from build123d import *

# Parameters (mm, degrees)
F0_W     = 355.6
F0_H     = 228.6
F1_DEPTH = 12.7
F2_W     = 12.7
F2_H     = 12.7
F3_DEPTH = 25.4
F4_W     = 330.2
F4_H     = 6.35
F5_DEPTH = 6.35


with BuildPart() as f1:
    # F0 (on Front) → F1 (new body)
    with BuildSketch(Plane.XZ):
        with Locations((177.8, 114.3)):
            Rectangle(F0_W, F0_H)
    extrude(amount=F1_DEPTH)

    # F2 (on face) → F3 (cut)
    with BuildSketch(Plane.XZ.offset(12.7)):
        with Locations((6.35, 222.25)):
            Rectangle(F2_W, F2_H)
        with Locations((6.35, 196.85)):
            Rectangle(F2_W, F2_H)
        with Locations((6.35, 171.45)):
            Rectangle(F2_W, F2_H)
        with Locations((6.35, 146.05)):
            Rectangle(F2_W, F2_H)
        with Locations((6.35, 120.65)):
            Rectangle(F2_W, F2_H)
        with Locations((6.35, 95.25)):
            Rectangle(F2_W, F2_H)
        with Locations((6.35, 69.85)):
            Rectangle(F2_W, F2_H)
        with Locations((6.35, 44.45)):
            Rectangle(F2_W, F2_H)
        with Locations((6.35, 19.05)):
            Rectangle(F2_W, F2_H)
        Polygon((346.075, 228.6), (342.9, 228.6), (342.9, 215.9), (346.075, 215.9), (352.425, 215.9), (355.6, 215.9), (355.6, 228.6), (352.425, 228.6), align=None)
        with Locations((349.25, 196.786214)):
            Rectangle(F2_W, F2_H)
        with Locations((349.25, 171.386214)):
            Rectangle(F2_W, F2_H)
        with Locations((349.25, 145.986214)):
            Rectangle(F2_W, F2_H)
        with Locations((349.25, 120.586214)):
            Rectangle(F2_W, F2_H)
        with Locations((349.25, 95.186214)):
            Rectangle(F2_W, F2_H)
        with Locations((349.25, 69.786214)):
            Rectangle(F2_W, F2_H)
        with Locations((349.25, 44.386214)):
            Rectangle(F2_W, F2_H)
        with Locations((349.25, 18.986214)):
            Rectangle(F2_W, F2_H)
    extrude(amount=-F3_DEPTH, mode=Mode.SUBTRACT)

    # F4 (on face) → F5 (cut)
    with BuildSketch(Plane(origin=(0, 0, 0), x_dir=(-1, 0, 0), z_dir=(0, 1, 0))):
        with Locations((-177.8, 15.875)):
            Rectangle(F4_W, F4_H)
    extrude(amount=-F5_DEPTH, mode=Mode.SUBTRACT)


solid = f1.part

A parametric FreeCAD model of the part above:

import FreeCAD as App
import Part
import Sketcher
from FreeCAD import Vector
Q = App.Units.Quantity


def add_polygon(sketch, points):
    """Adds a closed chain of lines whose ends are joined by coincident constraints."""
    first, n = sketch.GeometryCount, len(points)
    for a, b in zip(points, points[1:] + points[:1]):
        sketch.addGeometry(Part.LineSegment(App.Vector(*a, 0), App.Vector(*b, 0)), False)
    for i in range(n):
        sketch.addConstraint(Sketcher.Constraint("Coincident", first + i, 2, first + (i + 1) % n, 1))

doc = App.newDocument("Part")
body = doc.addObject("PartDesign::Body", "Body")

# Sketch on XZ plane
sketch1 = doc.addObject("Sketcher::SketchObject", "Sketch")
body.addObject(sketch1)
sketch1.AttachmentSupport = (doc.XZ_Plane, [""])
sketch1.MapMode = "FlatFace"
add_polygon(sketch1, [(0, 229), (0, 0), (356, 0), (356, 229)])  # lines 0-3
sketch1.addConstraint([
    Sketcher.Constraint("Vertical", 0),
    Sketcher.Constraint("Horizontal", 1),
    Sketcher.Constraint("Vertical", 2),
    Sketcher.Constraint("Horizontal", 3),
    Sketcher.Constraint("Coincident", 0, 2, -1, 1),
    Sketcher.Constraint("DistanceX", 1, 1, 1, 2, Q("14 in")),
    Sketcher.Constraint("DistanceY", 0, 2, 0, 1, Q("9 in")),
])
pad1 = doc.addObject("PartDesign::Pad", "Pad")
body.addObject(pad1)
pad1.Profile = sketch1
pad1.Length = Q("0.5 in")

# Sketch on XZ plane
sketch2 = doc.addObject("Sketcher::SketchObject", "Sketch001")
body.addObject(sketch2)
sketch2.AttachmentSupport = (doc.XZ_Plane, [""])
sketch2.MapMode = "FlatFace"
sketch2.AttachmentOffset = App.Placement(Vector(0, 0, 0.5 * 25.4), App.Rotation())
add_polygon(sketch2, [(0, 229), (0, 216), (13, 216), (13, 229)])  # lines 0-3
add_polygon(sketch2, [(0, 203), (0, 190), (13, 190), (13, 203)])  # lines 4-7
add_polygon(sketch2, [(0, 178), (0, 165), (13, 165), (13, 178)])  # lines 8-11
add_polygon(sketch2, [(0, 152), (0, 140), (13, 140), (13, 152)])  # lines 12-15
add_polygon(sketch2, [(0, 127), (0, 114), (13, 114), (13, 127)])  # lines 16-19
add_polygon(sketch2, [(0, 102), (0, 89), (13, 89), (13, 102)])  # lines 20-23
add_polygon(sketch2, [(0, 76), (0, 64), (13, 64), (13, 76)])  # lines 24-27
add_polygon(sketch2, [(0, 51), (0, 38), (13, 38), (13, 51)])  # lines 28-31
add_polygon(sketch2, [(0, 25), (0, 13), (13, 13), (13, 25)])  # lines 32-35
add_polygon(sketch2, [(343, 229), (343, 216), (356, 216), (356, 229)])  # lines 36-39
add_polygon(sketch2, [(343, 203), (343, 190), (356, 190), (356, 203)])  # lines 40-43
add_polygon(sketch2, [(343, 178), (343, 165), (356, 165), (356, 178)])  # lines 44-47
add_polygon(sketch2, [(343, 152), (343, 140), (356, 140), (356, 152)])  # lines 48-51
add_polygon(sketch2, [(343, 127), (343, 114), (356, 114), (356, 127)])  # lines 52-55
add_polygon(sketch2, [(343, 102), (343, 89), (356, 89), (356, 102)])  # lines 56-59
add_polygon(sketch2, [(343, 76), (343, 63), (356, 63), (356, 76)])  # lines 60-63
add_polygon(sketch2, [(343, 51), (343, 38), (356, 38), (356, 51)])  # lines 64-67
add_polygon(sketch2, [(343, 25), (343, 13), (356, 13), (356, 25)])  # lines 68-71
sketch2.addConstraint([
    Sketcher.Constraint("Vertical", 0),
    Sketcher.Constraint("Horizontal", 1),
    Sketcher.Constraint("Vertical", 2),
    Sketcher.Constraint("Horizontal", 3),
    Sketcher.Constraint("Vertical", 4),
    Sketcher.Constraint("Horizontal", 5),
    Sketcher.Constraint("Vertical", 6),
    Sketcher.Constraint("Horizontal", 7),
    Sketcher.Constraint("Vertical", 8),
    Sketcher.Constraint("Horizontal", 9),
    Sketcher.Constraint("Vertical", 10),
    Sketcher.Constraint("Horizontal", 11),
    Sketcher.Constraint("Vertical", 12),
    Sketcher.Constraint("Horizontal", 13),
    Sketcher.Constraint("Vertical", 14),
    Sketcher.Constraint("Horizontal", 15),
    Sketcher.Constraint("Vertical", 16),
    Sketcher.Constraint("Horizontal", 17),
    Sketcher.Constraint("Vertical", 18),
    Sketcher.Constraint("Horizontal", 19),
    Sketcher.Constraint("Vertical", 20),
    Sketcher.Constraint("Horizontal", 21),
    Sketcher.Constraint("Vertical", 22),
    Sketcher.Constraint("Horizontal", 23),
    Sketcher.Constraint("Vertical", 24),
    Sketcher.Constraint("Horizontal", 25),
    Sketcher.Constraint("Vertical", 26),
    Sketcher.Constraint("Horizontal", 27),
    Sketcher.Constraint("Vertical", 28),
    Sketcher.Constraint("Horizontal", 29),
    Sketcher.Constraint("Vertical", 30),
    Sketcher.Constraint("Horizontal", 31),
    Sketcher.Constraint("Vertical", 32),
    Sketcher.Constraint("Horizontal", 33),
    Sketcher.Constraint("Vertical", 34),
    Sketcher.Constraint("Horizontal", 35),
    Sketcher.Constraint("Vertical", 36),
    Sketcher.Constraint("Horizontal", 37),
    Sketcher.Constraint("Vertical", 38),
    Sketcher.Constraint("Horizontal", 39),
    Sketcher.Constraint("Vertical", 40),
    Sketcher.Constraint("Horizontal", 41),
    Sketcher.Constraint("Vertical", 42),
    Sketcher.Constraint("Horizontal", 43),
    Sketcher.Constraint("Vertical", 44),
    Sketcher.Constraint("Horizontal", 45),
    Sketcher.Constraint("Vertical", 46),
    Sketcher.Constraint("Horizontal", 47),
    Sketcher.Constraint("Vertical", 48),
    Sketcher.Constraint("Horizontal", 49),
    Sketcher.Constraint("Vertical", 50),
    Sketcher.Constraint("Horizontal", 51),
    Sketcher.Constraint("Vertical", 52),
    Sketcher.Constraint("Horizontal", 53),
    Sketcher.Constraint("Vertical", 54),
    Sketcher.Constraint("Horizontal", 55),
    Sketcher.Constraint("Vertical", 56),
    Sketcher.Constraint("Horizontal", 57),
    Sketcher.Constraint("Vertical", 58),
    Sketcher.Constraint("Horizontal", 59),
    Sketcher.Constraint("Vertical", 60),
    Sketcher.Constraint("Horizontal", 61),
    Sketcher.Constraint("Vertical", 62),
    Sketcher.Constraint("Horizontal", 63),
    Sketcher.Constraint("Vertical", 64),
    Sketcher.Constraint("Horizontal", 65),
    Sketcher.Constraint("Vertical", 66),
    Sketcher.Constraint("Horizontal", 67),
    Sketcher.Constraint("Vertical", 68),
    Sketcher.Constraint("Horizontal", 69),
    Sketcher.Constraint("Vertical", 70),
    Sketcher.Constraint("Horizontal", 71),
    Sketcher.Constraint("PointOnObject", 0, 2, -2),
    Sketcher.Constraint("PointOnObject", 4, 2, -2),
    Sketcher.Constraint("PointOnObject", 8, 2, -2),
    Sketcher.Constraint("PointOnObject", 12, 2, -2),
    Sketcher.Constraint("PointOnObject", 16, 2, -2),
    Sketcher.Constraint("PointOnObject", 20, 2, -2),
    Sketcher.Constraint("PointOnObject", 24, 2, -2),
    Sketcher.Constraint("PointOnObject", 28, 2, -2),
    Sketcher.Constraint("PointOnObject", 32, 2, -2),
    Sketcher.Constraint("Horizontal", 1, 2, 36, 2),
    Sketcher.Constraint("Horizontal", 3, 2, 38, 2),
    Sketcher.Constraint("Vertical", 2, 2, 5, 2),
    Sketcher.Constraint("Vertical", 6, 2, 9, 2),
    Sketcher.Constraint("Vertical", 10, 2, 13, 2),
    Sketcher.Constraint("Vertical", 14, 2, 17, 2),
    Sketcher.Constraint("Vertical", 18, 2, 21, 2),
    Sketcher.Constraint("Vertical", 22, 2, 25, 2),
    Sketcher.Constraint("Vertical", 26, 2, 29, 2),
    Sketcher.Constraint("Vertical", 30, 2, 33, 2),
    Sketcher.Constraint("Vertical", 39, 2, 40, 2),
    Sketcher.Constraint("Vertical", 38, 2, 41, 2),
    Sketcher.Constraint("Vertical", 43, 2, 44, 2),
    Sketcher.Constraint("Vertical", 42, 2, 45, 2),
    Sketcher.Constraint("Vertical", 47, 2, 48, 2),
    Sketcher.Constraint("Vertical", 46, 2, 49, 2),
    Sketcher.Constraint("Vertical", 51, 2, 52, 2),
    Sketcher.Constraint("Vertical", 50, 2, 53, 2),
    Sketcher.Constraint("Vertical", 55, 2, 56, 2),
    Sketcher.Constraint("Vertical", 54, 2, 57, 2),
    Sketcher.Constraint("Vertical", 59, 2, 60, 2),
    Sketcher.Constraint("Vertical", 58, 2, 61, 2),
    Sketcher.Constraint("Vertical", 63, 2, 64, 2),
    Sketcher.Constraint("Vertical", 62, 2, 65, 2),
    Sketcher.Constraint("Vertical", 67, 2, 68, 2),
    Sketcher.Constraint("Vertical", 66, 2, 69, 2),
    Sketcher.Constraint("Equal", 35, 37),
    Sketcher.Constraint("Equal", 71, 0),
    Sketcher.Constraint("Equal", 2, 4),
    Sketcher.Constraint("Equal", 6, 8),
    Sketcher.Constraint("Equal", 10, 12),
    Sketcher.Constraint("Equal", 14, 16),
    Sketcher.Constraint("Equal", 18, 20),
    Sketcher.Constraint("Equal", 22, 24),
    Sketcher.Constraint("Equal", 26, 28),
    Sketcher.Constraint("Equal", 30, 32),
    Sketcher.Constraint("Equal", 38, 40),
    Sketcher.Constraint("Equal", 42, 44),
    Sketcher.Constraint("Equal", 46, 48),
    Sketcher.Constraint("Equal", 50, 52),
    Sketcher.Constraint("Equal", 54, 56),
    Sketcher.Constraint("Equal", 58, 60),
    Sketcher.Constraint("Equal", 62, 64),
    Sketcher.Constraint("Equal", 66, 68),
    Sketcher.Constraint("DistanceX", 1, 1, 1, 2, Q("0.5 in")),
    Sketcher.Constraint("DistanceY", -1, 1, 2, 2, Q("9 in")),
    Sketcher.Constraint("DistanceY", -1, 1, 6, 2, Q("8 in")),
    Sketcher.Constraint("DistanceY", -1, 1, 10, 2, Q("7 in")),
    Sketcher.Constraint("DistanceY", -1, 1, 14, 2, Q("6 in")),
    Sketcher.Constraint("DistanceY", -1, 1, 18, 2, Q("5 in")),
    Sketcher.Constraint("DistanceY", -1, 1, 22, 2, Q("4 in")),
    Sketcher.Constraint("DistanceY", -1, 1, 26, 2, Q("3 in")),
    Sketcher.Constraint("DistanceY", -1, 1, 30, 2, Q("2 in")),
    Sketcher.Constraint("DistanceY", -1, 1, 34, 2, Q("1 in")),
    Sketcher.Constraint("DistanceX", -1, 1, 37, 2, Q("14 in")),
    Sketcher.Constraint("DistanceY", -1, 1, 40, 2, Q("190.436214 mm")),
    Sketcher.Constraint("DistanceY", -1, 1, 44, 2, Q("165.036214 mm")),
    Sketcher.Constraint("DistanceY", -1, 1, 48, 2, Q("139.636214 mm")),
    Sketcher.Constraint("DistanceY", -1, 1, 52, 2, Q("114.236214 mm")),
    Sketcher.Constraint("DistanceY", -1, 1, 56, 2, Q("88.836214 mm")),
    Sketcher.Constraint("DistanceY", -1, 1, 60, 2, Q("63.436214 mm")),
    Sketcher.Constraint("DistanceY", -1, 1, 64, 2, Q("38.036214 mm")),
    Sketcher.Constraint("DistanceY", -1, 1, 68, 2, Q("12.636214 mm")),
])
pocket1 = doc.addObject("PartDesign::Pocket", "Pocket")
body.addObject(pocket1)
pocket1.Profile = sketch2
pocket1.Length = Q("1 in")

# Sketch on XZ plane
sketch3 = doc.addObject("Sketcher::SketchObject", "Sketch002")
body.addObject(sketch3)
sketch3.AttachmentSupport = (doc.XZ_Plane, [""])
sketch3.MapMode = "FlatFace"
add_polygon(sketch3, [(343, 19), (343, 13), (13, 13), (13, 19)])  # lines 0-3
sketch3.addConstraint([
    Sketcher.Constraint("Vertical", 0),
    Sketcher.Constraint("Horizontal", 1),
    Sketcher.Constraint("Vertical", 2),
    Sketcher.Constraint("Horizontal", 3),
    Sketcher.Constraint("DistanceX", 1, 2, 1, 1, Q("13 in")),
    Sketcher.Constraint("DistanceY", 0, 2, 0, 1, Q("0.25 in")),
    Sketcher.Constraint("DistanceX", -1, 1, 0, 2, Q("13.5 in")),
    Sketcher.Constraint("DistanceY", -1, 1, 0, 2, Q("0.5 in")),
])
pocket2 = doc.addObject("PartDesign::Pocket", "Pocket001")
body.addObject(pocket2)
pocket2.Profile = sketch3
pocket2.Length = Q("0.25 in")
pocket2.Reversed = True

doc.recompute()
